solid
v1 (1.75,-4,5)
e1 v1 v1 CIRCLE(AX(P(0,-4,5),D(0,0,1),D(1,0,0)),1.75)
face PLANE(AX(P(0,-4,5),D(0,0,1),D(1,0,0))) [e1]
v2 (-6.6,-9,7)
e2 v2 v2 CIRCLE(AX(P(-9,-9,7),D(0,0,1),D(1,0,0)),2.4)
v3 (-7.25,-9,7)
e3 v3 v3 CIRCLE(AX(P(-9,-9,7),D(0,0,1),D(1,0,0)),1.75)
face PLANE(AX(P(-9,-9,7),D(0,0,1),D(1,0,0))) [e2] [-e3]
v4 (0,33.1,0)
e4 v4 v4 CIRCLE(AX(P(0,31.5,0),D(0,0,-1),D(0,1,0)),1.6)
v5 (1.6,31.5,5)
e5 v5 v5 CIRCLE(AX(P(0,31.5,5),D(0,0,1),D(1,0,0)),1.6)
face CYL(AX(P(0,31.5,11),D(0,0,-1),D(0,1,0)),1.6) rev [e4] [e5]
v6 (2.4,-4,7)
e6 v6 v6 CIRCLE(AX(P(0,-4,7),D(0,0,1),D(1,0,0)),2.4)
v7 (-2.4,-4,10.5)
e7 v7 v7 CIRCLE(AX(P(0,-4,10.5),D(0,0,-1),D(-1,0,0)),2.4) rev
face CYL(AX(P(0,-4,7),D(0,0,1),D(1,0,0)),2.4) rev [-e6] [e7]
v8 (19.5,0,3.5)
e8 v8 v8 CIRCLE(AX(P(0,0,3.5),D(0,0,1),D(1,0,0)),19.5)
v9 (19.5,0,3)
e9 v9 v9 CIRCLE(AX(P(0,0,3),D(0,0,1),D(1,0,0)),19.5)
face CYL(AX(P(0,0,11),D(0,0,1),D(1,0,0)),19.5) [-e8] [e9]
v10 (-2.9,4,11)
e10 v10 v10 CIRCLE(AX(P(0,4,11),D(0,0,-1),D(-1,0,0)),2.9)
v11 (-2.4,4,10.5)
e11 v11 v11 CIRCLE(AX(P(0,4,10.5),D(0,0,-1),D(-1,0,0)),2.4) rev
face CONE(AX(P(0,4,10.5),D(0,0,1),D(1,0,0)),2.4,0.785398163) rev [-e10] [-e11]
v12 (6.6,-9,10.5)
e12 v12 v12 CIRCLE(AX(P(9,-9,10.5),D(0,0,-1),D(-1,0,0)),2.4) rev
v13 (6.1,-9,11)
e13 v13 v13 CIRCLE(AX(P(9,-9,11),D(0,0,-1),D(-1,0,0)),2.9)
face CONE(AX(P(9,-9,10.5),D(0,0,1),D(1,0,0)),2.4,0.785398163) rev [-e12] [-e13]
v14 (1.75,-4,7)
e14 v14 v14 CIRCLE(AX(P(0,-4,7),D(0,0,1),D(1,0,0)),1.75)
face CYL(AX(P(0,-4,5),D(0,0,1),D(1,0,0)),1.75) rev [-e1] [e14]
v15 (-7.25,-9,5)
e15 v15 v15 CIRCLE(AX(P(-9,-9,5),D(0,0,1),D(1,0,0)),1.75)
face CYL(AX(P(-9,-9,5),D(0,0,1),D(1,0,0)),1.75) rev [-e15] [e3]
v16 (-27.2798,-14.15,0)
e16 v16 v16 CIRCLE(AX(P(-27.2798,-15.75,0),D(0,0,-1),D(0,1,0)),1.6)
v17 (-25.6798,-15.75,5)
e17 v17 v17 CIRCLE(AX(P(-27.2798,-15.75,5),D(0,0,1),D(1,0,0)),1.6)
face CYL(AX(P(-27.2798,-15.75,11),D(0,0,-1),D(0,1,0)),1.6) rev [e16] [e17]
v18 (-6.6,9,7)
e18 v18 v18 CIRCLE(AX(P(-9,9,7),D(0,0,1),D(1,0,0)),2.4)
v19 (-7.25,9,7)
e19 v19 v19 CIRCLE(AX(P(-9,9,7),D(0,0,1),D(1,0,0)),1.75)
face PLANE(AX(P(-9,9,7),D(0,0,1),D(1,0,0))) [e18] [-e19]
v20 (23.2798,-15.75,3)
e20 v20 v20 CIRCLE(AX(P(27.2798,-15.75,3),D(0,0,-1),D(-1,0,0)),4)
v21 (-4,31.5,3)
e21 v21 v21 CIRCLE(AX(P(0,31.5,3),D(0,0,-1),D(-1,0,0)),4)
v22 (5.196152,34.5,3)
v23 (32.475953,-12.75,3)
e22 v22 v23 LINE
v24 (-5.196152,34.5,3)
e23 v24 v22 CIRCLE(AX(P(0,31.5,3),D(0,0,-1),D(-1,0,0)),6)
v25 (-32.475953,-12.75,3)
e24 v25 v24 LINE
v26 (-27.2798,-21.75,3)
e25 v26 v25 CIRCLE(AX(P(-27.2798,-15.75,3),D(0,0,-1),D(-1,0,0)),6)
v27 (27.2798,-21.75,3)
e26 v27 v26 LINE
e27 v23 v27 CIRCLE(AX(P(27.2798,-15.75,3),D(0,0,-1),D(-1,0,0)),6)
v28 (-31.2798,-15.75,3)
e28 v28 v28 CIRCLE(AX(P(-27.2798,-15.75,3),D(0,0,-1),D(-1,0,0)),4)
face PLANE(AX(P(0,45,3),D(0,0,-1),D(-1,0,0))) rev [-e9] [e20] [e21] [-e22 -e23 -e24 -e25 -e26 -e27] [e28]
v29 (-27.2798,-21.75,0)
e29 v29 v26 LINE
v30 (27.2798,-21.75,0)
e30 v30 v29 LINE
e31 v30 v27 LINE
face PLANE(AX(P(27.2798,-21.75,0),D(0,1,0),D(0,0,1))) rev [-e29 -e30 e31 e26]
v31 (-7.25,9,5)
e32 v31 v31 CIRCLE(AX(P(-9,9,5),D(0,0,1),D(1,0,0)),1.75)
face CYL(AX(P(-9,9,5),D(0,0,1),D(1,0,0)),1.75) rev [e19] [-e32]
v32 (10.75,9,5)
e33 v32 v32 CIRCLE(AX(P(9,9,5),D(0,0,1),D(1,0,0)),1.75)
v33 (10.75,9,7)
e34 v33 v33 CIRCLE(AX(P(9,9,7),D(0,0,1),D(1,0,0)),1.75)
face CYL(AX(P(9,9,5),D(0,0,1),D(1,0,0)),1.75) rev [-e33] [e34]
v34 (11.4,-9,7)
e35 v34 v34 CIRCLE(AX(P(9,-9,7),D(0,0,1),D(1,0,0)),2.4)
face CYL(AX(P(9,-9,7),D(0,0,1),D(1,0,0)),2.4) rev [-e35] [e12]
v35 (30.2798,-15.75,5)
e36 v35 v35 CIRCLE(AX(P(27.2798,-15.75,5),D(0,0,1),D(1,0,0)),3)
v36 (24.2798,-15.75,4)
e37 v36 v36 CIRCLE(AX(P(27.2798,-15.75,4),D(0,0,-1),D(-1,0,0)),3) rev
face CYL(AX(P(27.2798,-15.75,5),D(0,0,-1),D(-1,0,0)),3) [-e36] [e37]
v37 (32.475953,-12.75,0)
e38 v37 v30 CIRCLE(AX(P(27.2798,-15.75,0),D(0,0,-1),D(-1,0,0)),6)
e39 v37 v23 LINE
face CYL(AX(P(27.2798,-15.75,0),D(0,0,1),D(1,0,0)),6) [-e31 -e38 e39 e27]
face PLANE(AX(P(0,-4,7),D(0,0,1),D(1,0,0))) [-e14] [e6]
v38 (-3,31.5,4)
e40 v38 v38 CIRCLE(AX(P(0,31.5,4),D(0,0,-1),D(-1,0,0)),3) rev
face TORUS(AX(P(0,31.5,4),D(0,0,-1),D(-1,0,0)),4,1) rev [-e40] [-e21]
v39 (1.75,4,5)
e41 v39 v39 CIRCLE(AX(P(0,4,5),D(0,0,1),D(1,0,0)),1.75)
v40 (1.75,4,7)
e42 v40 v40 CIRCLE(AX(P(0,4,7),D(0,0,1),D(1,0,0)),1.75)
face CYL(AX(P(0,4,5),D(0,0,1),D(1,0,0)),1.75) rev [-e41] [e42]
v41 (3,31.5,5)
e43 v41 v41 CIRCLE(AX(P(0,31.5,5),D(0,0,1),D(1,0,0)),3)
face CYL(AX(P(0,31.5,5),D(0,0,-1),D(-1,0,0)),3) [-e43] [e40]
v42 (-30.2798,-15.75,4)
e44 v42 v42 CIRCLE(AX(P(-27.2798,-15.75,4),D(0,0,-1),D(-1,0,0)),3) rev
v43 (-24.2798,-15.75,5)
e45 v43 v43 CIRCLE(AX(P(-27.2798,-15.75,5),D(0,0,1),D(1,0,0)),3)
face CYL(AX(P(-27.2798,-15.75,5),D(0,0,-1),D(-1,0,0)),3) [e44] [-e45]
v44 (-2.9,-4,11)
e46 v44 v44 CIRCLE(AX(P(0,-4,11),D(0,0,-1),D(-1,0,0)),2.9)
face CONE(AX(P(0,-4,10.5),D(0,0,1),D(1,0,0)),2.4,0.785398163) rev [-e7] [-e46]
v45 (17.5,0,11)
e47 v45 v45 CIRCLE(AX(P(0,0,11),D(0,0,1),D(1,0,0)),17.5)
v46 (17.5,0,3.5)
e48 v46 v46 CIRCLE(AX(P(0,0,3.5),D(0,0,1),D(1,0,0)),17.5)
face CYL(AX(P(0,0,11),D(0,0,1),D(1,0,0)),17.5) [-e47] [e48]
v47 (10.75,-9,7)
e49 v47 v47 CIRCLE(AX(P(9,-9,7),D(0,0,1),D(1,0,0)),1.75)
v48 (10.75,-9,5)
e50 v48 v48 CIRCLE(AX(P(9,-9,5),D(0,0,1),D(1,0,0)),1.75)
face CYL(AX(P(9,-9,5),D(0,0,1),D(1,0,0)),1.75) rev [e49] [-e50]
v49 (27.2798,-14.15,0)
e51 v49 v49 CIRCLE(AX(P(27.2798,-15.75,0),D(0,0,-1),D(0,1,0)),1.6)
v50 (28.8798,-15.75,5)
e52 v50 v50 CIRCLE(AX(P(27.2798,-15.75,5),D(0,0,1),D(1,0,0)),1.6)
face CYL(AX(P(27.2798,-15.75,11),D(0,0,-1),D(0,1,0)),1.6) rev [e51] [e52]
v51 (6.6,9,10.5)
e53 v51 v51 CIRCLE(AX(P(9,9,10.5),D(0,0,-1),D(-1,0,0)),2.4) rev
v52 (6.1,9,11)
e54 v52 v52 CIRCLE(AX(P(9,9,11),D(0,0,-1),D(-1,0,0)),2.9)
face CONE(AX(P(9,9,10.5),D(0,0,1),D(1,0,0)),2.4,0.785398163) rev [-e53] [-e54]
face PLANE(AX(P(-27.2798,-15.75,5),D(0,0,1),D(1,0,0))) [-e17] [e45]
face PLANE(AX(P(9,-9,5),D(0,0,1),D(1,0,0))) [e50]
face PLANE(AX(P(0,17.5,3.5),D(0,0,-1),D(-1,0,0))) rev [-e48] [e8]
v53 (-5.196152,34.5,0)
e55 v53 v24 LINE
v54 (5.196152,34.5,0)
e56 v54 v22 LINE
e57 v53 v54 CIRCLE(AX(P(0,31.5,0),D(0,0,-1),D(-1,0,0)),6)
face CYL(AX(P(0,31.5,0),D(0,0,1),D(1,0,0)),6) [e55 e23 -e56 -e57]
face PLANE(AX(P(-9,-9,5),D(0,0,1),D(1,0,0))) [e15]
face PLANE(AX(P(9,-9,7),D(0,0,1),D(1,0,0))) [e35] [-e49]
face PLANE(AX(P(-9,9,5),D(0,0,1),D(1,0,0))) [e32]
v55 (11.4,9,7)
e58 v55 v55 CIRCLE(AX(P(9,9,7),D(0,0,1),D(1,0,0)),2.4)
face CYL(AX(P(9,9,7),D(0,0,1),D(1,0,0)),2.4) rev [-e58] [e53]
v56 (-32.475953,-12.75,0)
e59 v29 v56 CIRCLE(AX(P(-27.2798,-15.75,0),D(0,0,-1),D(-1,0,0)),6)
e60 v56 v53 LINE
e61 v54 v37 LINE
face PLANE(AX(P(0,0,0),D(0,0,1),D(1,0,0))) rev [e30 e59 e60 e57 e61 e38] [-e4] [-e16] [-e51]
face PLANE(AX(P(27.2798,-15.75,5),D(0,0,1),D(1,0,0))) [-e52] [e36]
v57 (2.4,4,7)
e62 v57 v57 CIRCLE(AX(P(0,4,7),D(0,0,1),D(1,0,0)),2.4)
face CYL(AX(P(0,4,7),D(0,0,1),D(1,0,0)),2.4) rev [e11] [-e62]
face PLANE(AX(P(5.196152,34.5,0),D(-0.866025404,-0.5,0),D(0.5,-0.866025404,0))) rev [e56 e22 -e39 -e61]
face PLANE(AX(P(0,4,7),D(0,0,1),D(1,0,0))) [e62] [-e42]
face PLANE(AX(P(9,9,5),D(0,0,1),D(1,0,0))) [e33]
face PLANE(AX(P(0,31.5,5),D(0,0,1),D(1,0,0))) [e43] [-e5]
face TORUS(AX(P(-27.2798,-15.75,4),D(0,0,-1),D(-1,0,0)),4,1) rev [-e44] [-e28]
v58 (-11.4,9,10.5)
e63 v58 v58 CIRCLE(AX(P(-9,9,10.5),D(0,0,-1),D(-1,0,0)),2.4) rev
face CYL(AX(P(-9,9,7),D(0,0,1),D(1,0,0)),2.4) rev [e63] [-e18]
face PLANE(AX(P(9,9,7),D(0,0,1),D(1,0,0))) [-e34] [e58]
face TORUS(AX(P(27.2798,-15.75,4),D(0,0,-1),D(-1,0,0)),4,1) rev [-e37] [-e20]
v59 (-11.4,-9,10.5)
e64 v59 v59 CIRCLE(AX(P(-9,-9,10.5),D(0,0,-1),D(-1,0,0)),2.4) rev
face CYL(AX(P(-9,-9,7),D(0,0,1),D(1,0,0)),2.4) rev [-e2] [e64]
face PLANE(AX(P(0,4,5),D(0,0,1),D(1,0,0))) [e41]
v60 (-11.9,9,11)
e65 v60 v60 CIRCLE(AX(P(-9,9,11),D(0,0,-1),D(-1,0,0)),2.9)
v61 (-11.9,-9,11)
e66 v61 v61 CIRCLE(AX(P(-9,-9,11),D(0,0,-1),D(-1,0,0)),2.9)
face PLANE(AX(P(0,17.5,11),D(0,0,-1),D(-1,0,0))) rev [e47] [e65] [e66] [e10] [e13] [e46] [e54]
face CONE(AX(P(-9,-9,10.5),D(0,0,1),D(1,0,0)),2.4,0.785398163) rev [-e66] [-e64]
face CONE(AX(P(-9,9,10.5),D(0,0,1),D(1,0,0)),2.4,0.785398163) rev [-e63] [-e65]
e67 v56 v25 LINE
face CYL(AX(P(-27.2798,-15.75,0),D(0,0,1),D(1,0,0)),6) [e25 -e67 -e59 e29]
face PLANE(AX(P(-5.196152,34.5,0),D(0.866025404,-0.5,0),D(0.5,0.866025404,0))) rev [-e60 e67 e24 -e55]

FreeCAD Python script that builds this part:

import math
import FreeCAD as App
import Part
import Sketcher

V = App.Vector
Q = App.Units.Quantity


def edges_at(feature, points):
    """Names of the edges that pass closest to the given points."""
    edges = feature.Shape.Edges
    near = lambda p: min(range(len(edges)), key=lambda i: edges[i].distToShape(Part.Vertex(*p))[0])
    return sorted({f"Edge{near(p) + 1}" for p in points})


def add_polygon(sketch, points):
    """Adds a closed chain of lines whose ends are joined by coincident constraints."""
    first, n = sketch.GeometryCount, len(points)
    for a, b in zip(points, points[1:] + points[:1]):
        sketch.addGeometry(Part.LineSegment(App.Vector(*a, 0), App.Vector(*b, 0)), False)
    for i in range(n):
        sketch.addConstraint(Sketcher.Constraint("Coincident", first + i, 2, first + (i + 1) % n, 1))

doc = App.newDocument("Part")
body = doc.addObject("PartDesign::Body", "Body")

# Sketch on YZ plane
sketch1 = body.newObject("Sketcher::SketchObject", "Sketch")
sketch1.AttachmentSupport = (doc.getObject("YZ_Plane"), [""])
sketch1.MapMode = "FlatFace"
add_polygon(sketch1, [(0, 0), (45, 0), (45, 3), (19.5, 3), (19.5, 3.5), (17.5, 3.5), (17.5, 11), (0, 11)])  # lines 0-7
sketch1.addConstraint(Sketcher.Constraint("Horizontal", 0))
sketch1.addConstraint(Sketcher.Constraint("Vertical", 1))
sketch1.addConstraint(Sketcher.Constraint("Horizontal", 2))
sketch1.addConstraint(Sketcher.Constraint("Vertical", 3))
sketch1.addConstraint(Sketcher.Constraint("Horizontal", 4))
sketch1.addConstraint(Sketcher.Constraint("Vertical", 5))
sketch1.addConstraint(Sketcher.Constraint("Horizontal", 6))
sketch1.addConstraint(Sketcher.Constraint("Vertical", 7))
sketch1.addConstraint(Sketcher.Constraint("Coincident", 7, 2, -1, 1))
sketch1.addConstraint(Sketcher.Constraint("DistanceX", 0, 1, 0, 2, 45.0))
sketch1.addConstraint(Sketcher.Constraint("DistanceX", 4, 2, 4, 1, 2.0))
sketch1.addConstraint(Sketcher.Constraint("DistanceY", 1, 1, 1, 2, 3.0))
sketch1.addConstraint(Sketcher.Constraint("DistanceY", 7, 2, 7, 1, 11.0))
sketch1.addConstraint(Sketcher.Constraint("DistanceX", 2, 2, 2, 1, 25.5))
sketch1.addConstraint(Sketcher.Constraint("DistanceY", 3, 1, 3, 2, 0.5))
revolution = body.newObject("PartDesign::Revolution", "Revolution")
revolution.Profile = sketch1
revolution.ReferenceAxis = (sketch1, ["V_Axis"])
revolution.Angle = 360

# Sketch on XY plane
sketch2 = body.newObject("Sketcher::SketchObject", "Sketch001")
sketch2.AttachmentSupport = (doc.getObject("XY_Plane"), [""])
sketch2.MapMode = "FlatFace"
sketch2.addGeometry(Part.Circle(V(0, 31.5, 0), V(0, 0, 1), 1.6), False)
sketch2.addGeometry(Part.Circle(V(-27.3, -15.8, 0), V(0, 0, 1), 1.6), False)
sketch2.addGeometry(Part.Circle(V(27.3, -15.8, 0), V(0, 0, 1), 1.6), False)
sketch2.addConstraint(Sketcher.Constraint("Equal", 0, 1))
sketch2.addConstraint(Sketcher.Constraint("Equal", 1, 2))
sketch2.addConstraint(Sketcher.Constraint("Symmetric", 1, 3, 2, 3, -2))
sketch2.addConstraint(Sketcher.Constraint("PointOnObject", 0, 3, -2))
sketch2.addConstraint(Sketcher.Constraint("Diameter", 0, 3.2))
sketch2.addConstraint(Sketcher.Constraint("DistanceY", -1, 1, 0, 3, 31.5))
sketch2.addConstraint(Sketcher.Constraint("DistanceY", 1, 3, -1, 1, 15.75))
sketch2.addConstraint(Sketcher.Constraint("DistanceX", 1, 3, -1, 1, 27.2798))
pocket1 = body.newObject("PartDesign::Pocket", "Pocket")
pocket1.Profile = sketch2
pocket1.Type = "ThroughAll"
pocket1.Reversed = True

# Sketch on XY plane
sketch3 = body.newObject("Sketcher::SketchObject", "Sketch002")
sketch3.AttachmentSupport = (doc.getObject("XY_Plane"), [""])
sketch3.MapMode = "FlatFace"
sketch3.AttachmentOffset = App.Placement(V(0, 0, 11), App.Rotation())
sketch3.addGeometry(Part.Circle(V(0, 4, 0), V(0, 0, 1), 2.4), False)
sketch3.addGeometry(Part.Circle(V(0, -4, 0), V(0, 0, 1), 2.4), False)
sketch3.addGeometry(Part.Circle(V(-9, 9, 0), V(0, 0, 1), 2.4), False)
sketch3.addGeometry(Part.Circle(V(9, 9, 0), V(0, 0, 1), 2.4), False)
sketch3.addGeometry(Part.Circle(V(9, -9, 0), V(0, 0, 1), 2.4), False)
sketch3.addGeometry(Part.Circle(V(-9, -9, 0), V(0, 0, 1), 2.4), False)
sketch3.addConstraint(Sketcher.Constraint("Equal", 0, 1))
sketch3.addConstraint(Sketcher.Constraint("Equal", 1, 2))
sketch3.addConstraint(Sketcher.Constraint("Equal", 2, 3))
sketch3.addConstraint(Sketcher.Constraint("Equal", 3, 4))
sketch3.addConstraint(Sketcher.Constraint("Equal", 4, 5))
sketch3.addConstraint(Sketcher.Constraint("Symmetric", 0, 3, 1, 3, -1, 1))
sketch3.addConstraint(Sketcher.Constraint("Symmetric", 2, 3, 4, 3, -1, 1))
sketch3.addConstraint(Sketcher.Constraint("Symmetric", 3, 3, 5, 3, -1, 1))
sketch3.addConstraint(Sketcher.Constraint("Symmetric", 2, 3, 3, 3, -2))
sketch3.addConstraint(Sketcher.Constraint("PointOnObject", 0, 3, -2))
sketch3.addConstraint(Sketcher.Constraint("Diameter", 0, 4.8))
sketch3.addConstraint(Sketcher.Constraint("DistanceY", -1, 1, 0, 3, 4.0))
sketch3.addConstraint(Sketcher.Constraint("DistanceX", 2, 3, -1, 1, 9.0))
sketch3.addConstraint(Sketcher.Constraint("DistanceY", -1, 1, 2, 3, 9.0))
pocket2 = body.newObject("PartDesign::Pocket", "Pocket001")
pocket2.Profile = sketch3
pocket2.Length = 4

# Sketch on XY plane
sketch4 = body.newObject("Sketcher::SketchObject", "Sketch003")
sketch4.AttachmentSupport = (doc.getObject("XY_Plane"), [""])
sketch4.MapMode = "FlatFace"
sketch4.AttachmentOffset = App.Placement(V(0, 0, 3), App.Rotation())
add_polygon(sketch4, [(59, 59), (59, -59), (-59, -59), (-59, 59)])  # lines 0-3
sketch4.addGeometry(Part.LineSegment(V(32, -13, 0), V(5, 34, 0)), False)  # 4
sketch4.addGeometry(Part.ArcOfCircle(Part.Circle(V(0, 31, 0), V(0, 0, 1), 6), math.radians(30), math.radians(150)), False)  # 5
sketch4.addGeometry(Part.LineSegment(V(-5, 34, 0), V(-32, -13, 0)), False)  # 6
sketch4.addGeometry(Part.ArcOfCircle(Part.Circle(V(-27, -16, 0), V(0, 0, 1), 6), math.radians(150), math.radians(270)), False)  # 7
sketch4.addGeometry(Part.LineSegment(V(-27, -22, 0), V(27, -22, 0)), False)  # 8
sketch4.addGeometry(Part.ArcOfCircle(Part.Circle(V(27, -16, 0), V(0, 0, 1), 6), math.radians(-90), math.radians(30)), False)  # 9
sketch4.addConstraint(Sketcher.Constraint("Tangent", 4, 2, 5, 1))
sketch4.addConstraint(Sketcher.Constraint("Tangent", 5, 2, 6, 1))
sketch4.addConstraint(Sketcher.Constraint("Tangent", 6, 2, 7, 1))
sketch4.addConstraint(Sketcher.Constraint("Tangent", 7, 2, 8, 1))
sketch4.addConstraint(Sketcher.Constraint("Tangent", 8, 2, 9, 1))
sketch4.addConstraint(Sketcher.Constraint("Tangent", 9, 2, 4, 1))
sketch4.addConstraint(Sketcher.Constraint("Vertical", 0))
sketch4.addConstraint(Sketcher.Constraint("Horizontal", 1))
sketch4.addConstraint(Sketcher.Constraint("Vertical", 2))
sketch4.addConstraint(Sketcher.Constraint("Horizontal", 3))
sketch4.addConstraint(Sketcher.Constraint("Horizontal", 8))
sketch4.addConstraint(Sketcher.Constraint("Equal", 5, 7))
sketch4.addConstraint(Sketcher.Constraint("Equal", 7, 9))
sketch4.addConstraint(Sketcher.Constraint("Symmetric", 0, 2, 2, 2, -1, 1))
sketch4.addConstraint(Sketcher.Constraint("Symmetric", 4, 2, 5, 2, -2))
sketch4.addConstraint(Sketcher.Constraint("Equal", 3, 0))
sketch4.addConstraint(Sketcher.Constraint("Radius", 5, 6.0))
sketch4.addConstraint(Sketcher.Constraint("Angle", 4, Q("120 deg")))
sketch4.addConstraint(Sketcher.Constraint("DistanceX", 1, 2, 1, 1, 117.55))
sketch4.addConstraint(Sketcher.Constraint("DistanceY", -1, 1, 5, 3, 31.5))
sketch4.addConstraint(Sketcher.Constraint("DistanceY", 7, 3, -1, 1, 15.75))
pocket3 = body.newObject("PartDesign::Pocket", "Pocket002")
pocket3.Profile = sketch4
pocket3.Type = "ThroughAll"
doc.recompute()

chamfer = body.newObject("PartDesign::Chamfer", "Chamfer")
chamfer.Base = (pocket3, edges_at(pocket3, [
    (-2.4, -4, 11),
    (-11.4, 9, 11),
    (6.6, 9, 11),
    (6.6, -9, 11),
    (-11.4, -9, 11),
    (-2.4, 4, 11),
]))
chamfer.Size = 0.5

# Sketch on XY plane
sketch5 = body.newObject("Sketcher::SketchObject", "Sketch004")
sketch5.AttachmentSupport = (doc.getObject("XY_Plane"), [""])
sketch5.MapMode = "FlatFace"
sketch5.AttachmentOffset = App.Placement(V(0, 0, 3), App.Rotation())
sketch5.addGeometry(Part.Circle(V(0, 31.5, 0), V(0, 0, 1), 3), False)
sketch5.addGeometry(Part.Circle(V(0, 31.5, 0), V(0, 0, 1), 1.6), False)
sketch5.addGeometry(Part.Circle(V(-27.3, -15.8, 0), V(0, 0, 1), 3), False)
sketch5.addGeometry(Part.Circle(V(-27.3, -15.8, 0), V(0, 0, 1), 1.6), False)
sketch5.addGeometry(Part.Circle(V(27.3, -15.8, 0), V(0, 0, 1), 3), False)
sketch5.addGeometry(Part.Circle(V(27.3, -15.8, 0), V(0, 0, 1), 1.6), False)
sketch5.addConstraint(Sketcher.Constraint("Coincident", 1, 3, 0, 3))
sketch5.addConstraint(Sketcher.Constraint("Coincident", 3, 3, 2, 3))
sketch5.addConstraint(Sketcher.Constraint("Coincident", 5, 3, 4, 3))
sketch5.addConstraint(Sketcher.Constraint("Equal", 0, 2))
sketch5.addConstraint(Sketcher.Constraint("Equal", 1, 3))
sketch5.addConstraint(Sketcher.Constraint("Equal", 2, 4))
sketch5.addConstraint(Sketcher.Constraint("Equal", 3, 5))
sketch5.addConstraint(Sketcher.Constraint("Symmetric", 2, 3, 4, 3, -2))
sketch5.addConstraint(Sketcher.Constraint("PointOnObject", 0, 3, -2))
sketch5.addConstraint(Sketcher.Constraint("Diameter", 0, 6.0))
sketch5.addConstraint(Sketcher.Constraint("Diameter", 1, 3.2))
sketch5.addConstraint(Sketcher.Constraint("DistanceY", -1, 1, 0, 3, 31.5))
sketch5.addConstraint(Sketcher.Constraint("DistanceY", 2, 3, -1, 1, 15.75))
sketch5.addConstraint(Sketcher.Constraint("DistanceX", 2, 3, -1, 1, 27.2798))
pad1 = body.newObject("PartDesign::Pad", "Pad")
pad1.Profile = sketch5
pad1.Length = 2
doc.recompute()

fillet = body.newObject("PartDesign::Fillet", "Fillet")
fillet.Base = (pad1, edges_at(pad1, [(30.28, -15.75, 3), (-24.28, -15.75, 3), (3, 31.5, 3)]))
fillet.Radius = 1

# Sketch on XY plane
sketch6 = body.newObject("Sketcher::SketchObject", "Sketch005")
sketch6.AttachmentSupport = (doc.getObject("XY_Plane"), [""])
sketch6.MapMode = "FlatFace"
sketch6.AttachmentOffset = App.Placement(V(0, 0, 11), App.Rotation())
sketch6.addGeometry(Part.Circle(V(-9, 9, 0), V(0, 0, 1), 1.8), False)
sketch6.addGeometry(Part.Circle(V(0, 4, 0), V(0, 0, 1), 1.8), False)
sketch6.addGeometry(Part.Circle(V(9, 9, 0), V(0, 0, 1), 1.8), False)
sketch6.addGeometry(Part.Circle(V(9, -9, 0), V(0, 0, 1), 1.8), False)
sketch6.addGeometry(Part.Circle(V(-9, -9, 0), V(0, 0, 1), 1.8), False)
sketch6.addGeometry(Part.Circle(V(0, -4, 0), V(0, 0, 1), 1.8), False)
sketch6.addConstraint(Sketcher.Constraint("Equal", 0, 1))
sketch6.addConstraint(Sketcher.Constraint("Equal", 1, 2))
sketch6.addConstraint(Sketcher.Constraint("Equal", 2, 3))
sketch6.addConstraint(Sketcher.Constraint("Equal", 3, 4))
sketch6.addConstraint(Sketcher.Constraint("Equal", 4, 5))
sketch6.addConstraint(Sketcher.Constraint("Symmetric", 0, 3, 3, 3, -1, 1))
sketch6.addConstraint(Sketcher.Constraint("Symmetric", 2, 3, 4, 3, -1, 1))
sketch6.addConstraint(Sketcher.Constraint("Symmetric", 1, 3, 5, 3, -1, 1))
sketch6.addConstraint(Sketcher.Constraint("Symmetric", 0, 3, 2, 3, -2))
sketch6.addConstraint(Sketcher.Constraint("PointOnObject", 1, 3, -2))
sketch6.addConstraint(Sketcher.Constraint("Diameter", 0, 3.5))
sketch6.addConstraint(Sketcher.Constraint("DistanceX", 0, 3, -1, 1, 9.0))
sketch6.addConstraint(Sketcher.Constraint("DistanceY", -1, 1, 0, 3, 9.0))
sketch6.addConstraint(Sketcher.Constraint("DistanceY", -1, 1, 1, 3, 4.0))
pocket4 = body.newObject("PartDesign::Pocket", "Pocket003")
pocket4.Profile = sketch6
pocket4.Length = 6

doc.recompute()
